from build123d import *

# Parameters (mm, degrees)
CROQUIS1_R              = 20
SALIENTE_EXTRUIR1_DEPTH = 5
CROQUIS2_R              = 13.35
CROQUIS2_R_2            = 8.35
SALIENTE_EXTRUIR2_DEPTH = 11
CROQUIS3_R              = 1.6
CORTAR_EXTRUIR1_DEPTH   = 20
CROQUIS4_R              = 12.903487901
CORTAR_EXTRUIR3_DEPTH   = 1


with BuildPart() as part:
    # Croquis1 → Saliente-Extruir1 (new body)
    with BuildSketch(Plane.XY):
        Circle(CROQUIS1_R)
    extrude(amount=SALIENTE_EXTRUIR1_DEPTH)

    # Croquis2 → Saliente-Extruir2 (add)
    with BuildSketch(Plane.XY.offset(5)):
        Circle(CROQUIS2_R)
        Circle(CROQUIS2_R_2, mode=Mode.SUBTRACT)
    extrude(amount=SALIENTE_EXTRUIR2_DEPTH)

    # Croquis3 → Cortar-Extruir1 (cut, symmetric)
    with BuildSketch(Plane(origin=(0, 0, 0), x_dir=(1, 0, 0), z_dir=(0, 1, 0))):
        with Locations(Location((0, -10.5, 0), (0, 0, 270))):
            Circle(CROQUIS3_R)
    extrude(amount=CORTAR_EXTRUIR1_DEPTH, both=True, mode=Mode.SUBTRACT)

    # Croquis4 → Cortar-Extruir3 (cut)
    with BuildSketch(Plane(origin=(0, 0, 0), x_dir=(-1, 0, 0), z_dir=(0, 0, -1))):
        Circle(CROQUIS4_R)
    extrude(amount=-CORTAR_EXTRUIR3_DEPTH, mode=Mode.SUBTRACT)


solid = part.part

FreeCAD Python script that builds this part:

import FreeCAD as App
import Part
import Sketcher
Q = App.Units.Quantity

doc = App.newDocument("Part")
body = doc.addObject("PartDesign::Body", "Body")

sketch1 = body.newObject("Sketcher::SketchObject", "Sketch")
sketch1.AttachmentSupport = (doc.getObject("XY_Plane"), [""])
sketch1.MapMode = "FlatFace"
sketch1.addGeometry(Part.Circle(App.Vector(0, 0, 0), App.Vector(0, 0, 1), 20), False)
sketch1.addConstraint(Sketcher.Constraint("Coincident", 0, 3, -1, 1))
sketch1.addConstraint(Sketcher.Constraint("Diameter", 0, Q("40 mm")))
pad1 = body.newObject("PartDesign::Pad", "Pad")
pad1.Profile = sketch1
pad1.Length = 5

sketch2 = body.newObject("Sketcher::SketchObject", "Sketch001")
sketch2.AttachmentSupport = (doc.getObject("XY_Plane"), [""])
sketch2.MapMode = "FlatFace"
sketch2.AttachmentOffset = App.Placement(App.Vector(0, 0, 5), App.Rotation())
sketch2.addGeometry(Part.Circle(App.Vector(0, 0, 0), App.Vector(0, 0, 1), 13.35), False)
sketch2.addGeometry(Part.Circle(App.Vector(0, 0, 0), App.Vector(0, 0, 1), 8.35), False)
sketch2.addConstraint(Sketcher.Constraint("Coincident", 0, 3, -1, 1))
sketch2.addConstraint(Sketcher.Constraint("Coincident", 1, 3, -1, 1))
sketch2.addConstraint(Sketcher.Constraint("Diameter", 0, Q("26.7 mm")))
sketch2.addConstraint(Sketcher.Constraint("Diameter", 1, Q("16.7 mm")))
pad2 = body.newObject("PartDesign::Pad", "Pad001")
pad2.Profile = sketch2
pad2.Length = 11

sketch3 = body.newObject("Sketcher::SketchObject", "Sketch002")
sketch3.AttachmentSupport = (doc.getObject("XZ_Plane"), [""])
sketch3.MapMode = "FlatFace"
sketch3.addGeometry(Part.Circle(App.Vector(0, 10.5, 0), App.Vector(0, 0, 1), 1.6), False)
sketch3.addConstraint(Sketcher.Constraint("PointOnObject", 0, 3, -2))
sketch3.addConstraint(Sketcher.Constraint("Diameter", 0, Q("3.2 mm")))
sketch3.addConstraint(Sketcher.Constraint("DistanceY", -1, 1, 0, 3, Q("10.5 mm")))
pocket1 = body.newObject("PartDesign::Pocket", "Pocket")
pocket1.Profile = sketch3
pocket1.Length = 40
pocket1.Midplane = True

sketch4 = body.newObject("Sketcher::SketchObject", "Sketch003")
sketch4.AttachmentSupport = (doc.getObject("XY_Plane"), [""])
sketch4.MapMode = "FlatFace"
sketch4.addGeometry(Part.Circle(App.Vector(0, 0, 0), App.Vector(0, 0, 1), 12.903488), False)
sketch4.addConstraint(Sketcher.Constraint("Coincident", 0, 3, -1, 1))
sketch4.addConstraint(Sketcher.Constraint("Diameter", 0, Q("25.806976 mm")))
pocket2 = body.newObject("PartDesign::Pocket", "Pocket001")
pocket2.Profile = sketch4
pocket2.Length = 1
pocket2.Reversed = True

doc.recompute()
